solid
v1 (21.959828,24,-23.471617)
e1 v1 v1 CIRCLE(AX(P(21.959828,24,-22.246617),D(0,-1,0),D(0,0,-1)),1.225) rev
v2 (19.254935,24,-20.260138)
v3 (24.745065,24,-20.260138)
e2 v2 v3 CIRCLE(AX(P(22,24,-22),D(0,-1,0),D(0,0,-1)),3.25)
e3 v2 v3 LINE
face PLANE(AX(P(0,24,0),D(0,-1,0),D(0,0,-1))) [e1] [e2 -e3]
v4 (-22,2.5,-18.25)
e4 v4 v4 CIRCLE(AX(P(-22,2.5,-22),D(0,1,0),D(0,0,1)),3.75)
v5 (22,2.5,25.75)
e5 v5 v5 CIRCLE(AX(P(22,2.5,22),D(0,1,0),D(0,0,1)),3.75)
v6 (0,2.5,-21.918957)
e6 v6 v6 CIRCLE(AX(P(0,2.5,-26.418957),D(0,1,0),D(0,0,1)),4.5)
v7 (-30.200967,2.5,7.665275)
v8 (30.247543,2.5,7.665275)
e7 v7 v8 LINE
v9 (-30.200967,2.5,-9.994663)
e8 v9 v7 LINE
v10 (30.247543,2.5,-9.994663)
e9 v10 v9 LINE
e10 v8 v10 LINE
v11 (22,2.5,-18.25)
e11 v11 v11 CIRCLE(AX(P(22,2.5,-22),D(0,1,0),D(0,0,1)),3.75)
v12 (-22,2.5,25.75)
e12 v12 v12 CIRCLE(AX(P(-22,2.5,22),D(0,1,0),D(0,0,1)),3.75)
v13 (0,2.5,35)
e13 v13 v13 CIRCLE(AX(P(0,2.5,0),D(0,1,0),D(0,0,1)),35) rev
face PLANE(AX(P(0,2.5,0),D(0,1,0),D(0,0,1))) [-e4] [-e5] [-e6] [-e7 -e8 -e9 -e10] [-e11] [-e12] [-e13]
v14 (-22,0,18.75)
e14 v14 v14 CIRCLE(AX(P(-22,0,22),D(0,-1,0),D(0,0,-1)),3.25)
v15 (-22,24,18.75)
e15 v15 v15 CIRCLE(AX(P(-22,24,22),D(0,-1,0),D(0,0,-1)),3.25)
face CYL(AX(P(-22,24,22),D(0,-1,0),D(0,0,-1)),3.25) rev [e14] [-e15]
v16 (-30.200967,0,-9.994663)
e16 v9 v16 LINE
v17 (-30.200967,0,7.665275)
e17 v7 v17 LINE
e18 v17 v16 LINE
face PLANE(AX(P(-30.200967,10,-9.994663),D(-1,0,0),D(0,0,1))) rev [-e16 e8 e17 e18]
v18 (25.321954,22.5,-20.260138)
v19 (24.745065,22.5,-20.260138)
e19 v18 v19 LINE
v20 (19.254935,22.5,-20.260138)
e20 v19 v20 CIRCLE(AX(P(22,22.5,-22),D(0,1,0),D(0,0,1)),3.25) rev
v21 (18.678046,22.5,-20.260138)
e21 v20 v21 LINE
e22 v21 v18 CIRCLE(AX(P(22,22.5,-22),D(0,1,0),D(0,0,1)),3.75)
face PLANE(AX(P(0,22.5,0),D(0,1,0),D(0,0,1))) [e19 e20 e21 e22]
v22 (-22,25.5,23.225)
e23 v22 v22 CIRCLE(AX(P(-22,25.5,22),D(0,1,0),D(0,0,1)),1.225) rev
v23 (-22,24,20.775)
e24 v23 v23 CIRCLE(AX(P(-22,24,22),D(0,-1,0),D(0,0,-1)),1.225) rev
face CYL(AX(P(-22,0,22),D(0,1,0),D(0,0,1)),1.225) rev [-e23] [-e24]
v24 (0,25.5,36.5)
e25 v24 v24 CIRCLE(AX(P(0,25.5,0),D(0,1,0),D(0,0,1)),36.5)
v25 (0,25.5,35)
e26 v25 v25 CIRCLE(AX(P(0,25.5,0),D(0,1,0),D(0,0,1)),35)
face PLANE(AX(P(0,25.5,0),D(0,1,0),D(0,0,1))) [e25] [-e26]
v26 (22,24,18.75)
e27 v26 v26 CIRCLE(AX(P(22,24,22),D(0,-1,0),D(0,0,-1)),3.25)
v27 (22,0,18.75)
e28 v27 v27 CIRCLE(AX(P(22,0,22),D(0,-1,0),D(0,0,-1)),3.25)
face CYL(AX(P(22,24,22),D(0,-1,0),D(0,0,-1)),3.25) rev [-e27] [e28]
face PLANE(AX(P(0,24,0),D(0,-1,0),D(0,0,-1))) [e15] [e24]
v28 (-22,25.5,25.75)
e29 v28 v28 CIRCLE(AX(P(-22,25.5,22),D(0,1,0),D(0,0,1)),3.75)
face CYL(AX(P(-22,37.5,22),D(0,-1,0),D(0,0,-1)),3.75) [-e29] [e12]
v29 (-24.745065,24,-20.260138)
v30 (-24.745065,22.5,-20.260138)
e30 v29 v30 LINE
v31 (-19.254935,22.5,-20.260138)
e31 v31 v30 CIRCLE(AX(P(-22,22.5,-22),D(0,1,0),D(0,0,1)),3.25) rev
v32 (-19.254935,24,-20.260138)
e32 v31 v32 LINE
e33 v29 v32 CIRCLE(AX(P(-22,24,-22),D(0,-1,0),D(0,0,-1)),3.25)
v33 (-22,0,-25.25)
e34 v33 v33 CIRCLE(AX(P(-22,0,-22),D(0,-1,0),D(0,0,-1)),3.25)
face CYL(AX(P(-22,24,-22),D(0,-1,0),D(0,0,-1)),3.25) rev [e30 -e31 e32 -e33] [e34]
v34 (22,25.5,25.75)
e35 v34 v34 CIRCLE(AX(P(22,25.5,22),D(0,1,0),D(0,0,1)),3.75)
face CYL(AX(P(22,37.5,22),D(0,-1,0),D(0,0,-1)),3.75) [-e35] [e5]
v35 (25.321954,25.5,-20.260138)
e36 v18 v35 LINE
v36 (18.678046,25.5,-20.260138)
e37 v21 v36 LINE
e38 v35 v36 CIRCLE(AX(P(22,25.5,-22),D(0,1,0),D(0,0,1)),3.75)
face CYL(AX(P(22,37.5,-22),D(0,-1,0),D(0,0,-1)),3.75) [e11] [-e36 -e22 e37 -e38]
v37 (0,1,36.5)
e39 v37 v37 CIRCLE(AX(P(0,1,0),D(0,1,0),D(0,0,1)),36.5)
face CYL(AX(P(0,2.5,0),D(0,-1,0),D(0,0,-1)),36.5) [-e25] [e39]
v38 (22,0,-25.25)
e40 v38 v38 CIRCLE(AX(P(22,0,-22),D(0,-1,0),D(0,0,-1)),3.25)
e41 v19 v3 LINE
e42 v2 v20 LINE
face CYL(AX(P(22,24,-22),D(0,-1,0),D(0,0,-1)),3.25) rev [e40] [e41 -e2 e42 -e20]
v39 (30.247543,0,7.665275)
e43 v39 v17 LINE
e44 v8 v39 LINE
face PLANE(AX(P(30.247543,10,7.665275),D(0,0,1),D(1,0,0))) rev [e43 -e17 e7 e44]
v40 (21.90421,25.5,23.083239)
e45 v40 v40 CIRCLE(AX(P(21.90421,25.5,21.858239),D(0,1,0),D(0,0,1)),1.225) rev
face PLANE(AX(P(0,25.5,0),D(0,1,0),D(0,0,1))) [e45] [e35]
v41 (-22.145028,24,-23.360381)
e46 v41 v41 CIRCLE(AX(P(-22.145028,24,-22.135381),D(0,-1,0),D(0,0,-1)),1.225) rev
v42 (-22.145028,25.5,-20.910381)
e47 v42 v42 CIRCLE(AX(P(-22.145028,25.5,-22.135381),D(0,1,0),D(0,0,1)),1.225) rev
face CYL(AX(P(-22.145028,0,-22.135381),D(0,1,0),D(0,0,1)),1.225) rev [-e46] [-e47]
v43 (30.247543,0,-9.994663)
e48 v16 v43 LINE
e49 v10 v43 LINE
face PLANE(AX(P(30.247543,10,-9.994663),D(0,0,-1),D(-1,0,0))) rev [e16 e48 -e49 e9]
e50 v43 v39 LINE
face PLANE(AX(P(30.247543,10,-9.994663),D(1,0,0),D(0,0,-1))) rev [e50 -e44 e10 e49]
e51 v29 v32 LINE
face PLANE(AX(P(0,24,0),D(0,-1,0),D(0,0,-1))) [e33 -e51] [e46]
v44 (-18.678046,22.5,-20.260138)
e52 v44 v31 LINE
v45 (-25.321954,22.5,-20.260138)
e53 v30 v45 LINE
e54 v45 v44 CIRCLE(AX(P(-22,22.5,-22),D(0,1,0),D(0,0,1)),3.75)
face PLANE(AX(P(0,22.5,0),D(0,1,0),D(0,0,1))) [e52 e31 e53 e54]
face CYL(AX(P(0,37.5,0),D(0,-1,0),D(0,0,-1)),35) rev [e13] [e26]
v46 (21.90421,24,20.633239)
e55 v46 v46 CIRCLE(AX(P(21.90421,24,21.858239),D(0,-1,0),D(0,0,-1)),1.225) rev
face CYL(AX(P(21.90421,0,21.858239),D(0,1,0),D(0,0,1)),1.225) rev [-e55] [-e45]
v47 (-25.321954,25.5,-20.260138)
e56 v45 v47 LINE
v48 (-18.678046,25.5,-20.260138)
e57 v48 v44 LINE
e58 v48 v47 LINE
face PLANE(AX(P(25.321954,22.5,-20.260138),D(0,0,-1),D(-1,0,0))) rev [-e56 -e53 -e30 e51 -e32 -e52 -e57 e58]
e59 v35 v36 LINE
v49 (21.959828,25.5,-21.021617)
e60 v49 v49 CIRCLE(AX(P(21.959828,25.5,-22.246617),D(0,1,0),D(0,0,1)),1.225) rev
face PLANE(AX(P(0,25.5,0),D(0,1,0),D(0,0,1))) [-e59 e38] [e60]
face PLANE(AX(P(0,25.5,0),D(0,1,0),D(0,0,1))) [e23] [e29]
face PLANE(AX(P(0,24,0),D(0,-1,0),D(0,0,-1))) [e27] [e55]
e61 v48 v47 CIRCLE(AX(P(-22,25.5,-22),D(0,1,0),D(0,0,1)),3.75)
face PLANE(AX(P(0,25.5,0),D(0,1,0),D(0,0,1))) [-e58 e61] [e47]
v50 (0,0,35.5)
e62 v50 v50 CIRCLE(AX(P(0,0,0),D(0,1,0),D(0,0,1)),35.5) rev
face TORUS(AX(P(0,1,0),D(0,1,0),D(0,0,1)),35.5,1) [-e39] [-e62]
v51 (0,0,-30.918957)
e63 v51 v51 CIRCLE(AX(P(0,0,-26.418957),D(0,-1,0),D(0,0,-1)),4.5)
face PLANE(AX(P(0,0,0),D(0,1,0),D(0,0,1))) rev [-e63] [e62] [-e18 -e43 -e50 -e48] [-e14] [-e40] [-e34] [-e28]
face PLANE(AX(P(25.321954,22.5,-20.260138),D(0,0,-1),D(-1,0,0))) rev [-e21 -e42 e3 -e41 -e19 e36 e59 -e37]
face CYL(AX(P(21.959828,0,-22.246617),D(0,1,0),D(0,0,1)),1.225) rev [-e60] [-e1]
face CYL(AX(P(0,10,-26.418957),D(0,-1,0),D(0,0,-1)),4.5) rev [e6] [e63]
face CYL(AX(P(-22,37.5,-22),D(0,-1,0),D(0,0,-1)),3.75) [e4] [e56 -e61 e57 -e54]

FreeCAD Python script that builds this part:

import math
import FreeCAD as App
import Part
import Sketcher

V = App.Vector


def edges_at(feature, points):
    """Names of the edges that pass closest to the given points."""
    edges = feature.Shape.Edges
    near = lambda p: min(range(len(edges)), key=lambda i: edges[i].distToShape(Part.Vertex(*p))[0])
    return sorted({f"Edge{near(p) + 1}" for p in points})


def add_polygon(sketch, points):
    """Adds a closed chain of lines whose ends are joined by coincident constraints."""
    first, n = sketch.GeometryCount, len(points)
    for a, b in zip(points, points[1:] + points[:1]):
        sketch.addGeometry(Part.LineSegment(App.Vector(*a, 0), App.Vector(*b, 0)), False)
    for i in range(n):
        sketch.addConstraint(Sketcher.Constraint("Coincident", first + i, 2, first + (i + 1) % n, 1))

doc = App.newDocument("Part")
body = doc.addObject("PartDesign::Body", "Body")

# Sketch on XZ plane
sketch1 = body.newObject("Sketcher::SketchObject", "Sketch")
sketch1.AttachmentSupport = (doc.getObject("XZ_Plane"), [""])
sketch1.MapMode = "FlatFace"
sketch1.addGeometry(Part.Circle(V(0, 0, 0), V(0, 0, 1), 36), False)
sketch1.addConstraint(Sketcher.Constraint("Coincident", 0, 3, -1, 1))
sketch1.addConstraint(Sketcher.Constraint("Diameter", 0, 73.0))
pad1 = body.newObject("PartDesign::Pad", "Pad")
pad1.Profile = sketch1
pad1.Length = 2.5
pad1.Reversed = True

# Sketch on XZ plane
sketch2 = body.newObject("Sketcher::SketchObject", "Sketch001")
sketch2.AttachmentSupport = (doc.getObject("XZ_Plane"), [""])
sketch2.MapMode = "FlatFace"
sketch2.AttachmentOffset = App.Placement(V(0, 0, -2.5), App.Rotation())
sketch2.addGeometry(Part.Circle(V(0, 0, 0), V(0, 0, 1), 36), False)
sketch2.addGeometry(Part.Circle(V(0, 0, 0), V(0, 0, 1), 35), False)
sketch2.addConstraint(Sketcher.Constraint("Coincident", 0, 3, -1, 1))
sketch2.addConstraint(Sketcher.Constraint("Coincident", 1, 3, -1, 1))
sketch2.addConstraint(Sketcher.Constraint("Diameter", 0, 73.0))
sketch2.addConstraint(Sketcher.Constraint("Diameter", 1, 70.0))
pad2 = body.newObject("PartDesign::Pad", "Pad001")
pad2.Profile = sketch2
pad2.Length = 35
pad2.Reversed = True

# Sketch on XZ plane
sketch3 = body.newObject("Sketcher::SketchObject", "Sketch002")
sketch3.AttachmentSupport = (doc.getObject("XZ_Plane"), [""])
sketch3.MapMode = "FlatFace"
sketch3.AttachmentOffset = App.Placement(V(0, 0, -2.5), App.Rotation())
sketch3.addGeometry(Part.Circle(V(-22, -22, 0), V(0, 0, 1), 3.8), False)
sketch3.addGeometry(Part.Circle(V(22, -22, 0), V(0, 0, 1), 3.8), False)
sketch3.addGeometry(Part.Circle(V(22, 22, 0), V(0, 0, 1), 3.8), False)
sketch3.addGeometry(Part.Circle(V(-22, 22, 0), V(0, 0, 1), 3.8), False)
sketch3.addConstraint(Sketcher.Constraint("Equal", 0, 1))
sketch3.addConstraint(Sketcher.Constraint("Equal", 1, 2))
sketch3.addConstraint(Sketcher.Constraint("Equal", 2, 3))
sketch3.addConstraint(Sketcher.Constraint("Symmetric", 0, 3, 2, 3, -1, 1))
sketch3.addConstraint(Sketcher.Constraint("Symmetric", 1, 3, 3, 3, -1, 1))
sketch3.addConstraint(Sketcher.Constraint("Symmetric", 0, 3, 1, 3, -2))
sketch3.addConstraint(Sketcher.Constraint("Diameter", 0, 7.5))
sketch3.addConstraint(Sketcher.Constraint("DistanceX", 0, 3, -1, 1, 22.0))
sketch3.addConstraint(Sketcher.Constraint("DistanceY", 0, 3, -1, 1, 22.0))
pad3 = body.newObject("PartDesign::Pad", "Pad002")
pad3.Profile = sketch3
pad3.Length = 35
pad3.Reversed = True

# Sketch on XZ plane
sketch4 = body.newObject("Sketcher::SketchObject", "Sketch003")
sketch4.AttachmentSupport = (doc.getObject("XZ_Plane"), [""])
sketch4.MapMode = "FlatFace"
sketch4.AttachmentOffset = App.Placement(V(0, 0, -37.5), App.Rotation())
sketch4.addGeometry(Part.Circle(V(-22, 22, 0), V(0, 0, 1), 1.2), False)
sketch4.addGeometry(Part.Circle(V(-22.1, -22.1, 0), V(0, 0, 1), 1.2), False)
sketch4.addGeometry(Part.Circle(V(22, -22.2, 0), V(0, 0, 1), 1.2), False)
sketch4.addGeometry(Part.Circle(V(21.9, 21.9, 0), V(0, 0, 1), 1.2), False)
sketch4.addConstraint(Sketcher.Constraint("Equal", 0, 1))
sketch4.addConstraint(Sketcher.Constraint("Equal", 1, 2))
sketch4.addConstraint(Sketcher.Constraint("Equal", 2, 3))
sketch4.addConstraint(Sketcher.Constraint("Diameter", 0, 2.45))
sketch4.addConstraint(Sketcher.Constraint("DistanceX", 0, 3, -1, 1, 22.0))
sketch4.addConstraint(Sketcher.Constraint("DistanceY", -1, 1, 0, 3, 22.0))
sketch4.addConstraint(Sketcher.Constraint("DistanceX", 1, 3, -1, 1, 22.145028))
sketch4.addConstraint(Sketcher.Constraint("DistanceY", 1, 3, -1, 1, 22.135381))
sketch4.addConstraint(Sketcher.Constraint("DistanceX", -1, 1, 3, 3, 21.90421))
sketch4.addConstraint(Sketcher.Constraint("DistanceY", -1, 1, 3, 3, 21.858239))
sketch4.addConstraint(Sketcher.Constraint("DistanceX", -1, 1, 2, 3, 21.959828))
sketch4.addConstraint(Sketcher.Constraint("DistanceY", 2, 3, -1, 1, 22.246617))
pocket1 = body.newObject("PartDesign::Pocket", "Pocket")
pocket1.Profile = sketch4
pocket1.Type = "ThroughAll"
pocket1.Reversed = True

# Sketch on XZ plane
sketch5 = body.newObject("Sketcher::SketchObject", "Sketch004")
sketch5.AttachmentSupport = (doc.getObject("XZ_Plane"), [""])
sketch5.MapMode = "FlatFace"
sketch5.AttachmentOffset = App.Placement(V(0, 0, -24), App.Rotation())
sketch5.addGeometry(Part.ArcOfCircle(Part.Circle(V(22, 22, 0), V(0, 0, 1), 3.25), math.radians(0), math.radians(180)), False)
sketch5.addGeometry(Part.ArcOfCircle(Part.Circle(V(22, 22, 0), V(0, 0, 1), 3.25), math.radians(180), math.radians(270)), False)
sketch5.addGeometry(Part.ArcOfCircle(Part.Circle(V(22, 22, 0), V(0, 0, 1), 3.25), math.radians(-90), math.radians(0)), False)
sketch5.addGeometry(Part.ArcOfCircle(Part.Circle(V(21.9, 21.86, 0), V(0, 0, 1), 1.23), math.radians(-86), math.radians(0)), False)
sketch5.addGeometry(Part.ArcOfCircle(Part.Circle(V(21.9, 21.86, 0), V(0, 0, 1), 1.23), math.radians(173), math.radians(274)), False)
sketch5.addGeometry(Part.ArcOfCircle(Part.Circle(V(21.9, 21.86, 0), V(0, 0, 1), 1.23), math.radians(0), math.radians(173)), False)
sketch5.addGeometry(Part.ArcOfCircle(Part.Circle(V(22, -22, 0), V(0, 0, 1), 3.25), math.radians(0), math.radians(90)), False)
sketch5.addGeometry(Part.ArcOfCircle(Part.Circle(V(22, -22, 0), V(0, 0, 1), 3.25), math.radians(90), math.radians(180)), False)
sketch5.addGeometry(Part.ArcOfCircle(Part.Circle(V(22, -22, 0), V(0, 0, 1), 3.25), math.radians(180), math.radians(360)), False)
sketch5.addGeometry(Part.ArcOfCircle(Part.Circle(V(21.96, -22.25, 0), V(0, 0, 1), 1.23), math.radians(168), math.radians(360)), False)
sketch5.addGeometry(Part.ArcOfCircle(Part.Circle(V(21.96, -22.25, 0), V(0, 0, 1), 1.23), math.radians(88), math.radians(168)), False)
sketch5.addGeometry(Part.ArcOfCircle(Part.Circle(V(21.96, -22.25, 0), V(0, 0, 1), 1.22), math.radians(0), math.radians(88)), False)
sketch5.addGeometry(Part.ArcOfCircle(Part.Circle(V(-22, -22, 0), V(0, 0, 1), 3.25), math.radians(0), math.radians(90)), False)
sketch5.addGeometry(Part.ArcOfCircle(Part.Circle(V(-22, -22, 0), V(0, 0, 1), 3.25), math.radians(90), math.radians(360)), False)
sketch5.addGeometry(Part.ArcOfCircle(Part.Circle(V(-22.15, -22.14, 0), V(0, 0, 1), 1.22), math.radians(6), math.radians(83)), False)
sketch5.addGeometry(Part.ArcOfCircle(Part.Circle(V(-22.15, -22.14, 0), V(0, 0, 1), 1.23), math.radians(0), math.radians(6.35)), False)
sketch5.addGeometry(Part.ArcOfCircle(Part.Circle(V(-22.15, -22.14, 0), V(0, 0, 1), 1.23), math.radians(83), math.radians(360)), False)
sketch5.addGeometry(Part.ArcOfCircle(Part.Circle(V(-22, 22, 0), V(0, 0, 1), 3.25), math.radians(0), math.radians(270)), False)
sketch5.addGeometry(Part.ArcOfCircle(Part.Circle(V(-22, 22, 0), V(0, 0, 1), 3.25), math.radians(-90), math.radians(0)), False)
sketch5.addGeometry(Part.ArcOfCircle(Part.Circle(V(-22, 22, 0), V(0, 0, 1), 1.23), math.radians(0), math.radians(270)), False)
sketch5.addGeometry(Part.ArcOfCircle(Part.Circle(V(-22, 22, 0), V(0, 0, 1), 1.23), math.radians(-90), math.radians(0)), False)
sketch5.addConstraint(Sketcher.Constraint("Tangent", 0, 2, 1, 1))
sketch5.addConstraint(Sketcher.Constraint("Tangent", 1, 2, 2, 1))
sketch5.addConstraint(Sketcher.Constraint("Tangent", 2, 2, 0, 1))
sketch5.addConstraint(Sketcher.Constraint("Tangent", 3, 1, 4, 2))
sketch5.addConstraint(Sketcher.Constraint("Tangent", 4, 1, 5, 2))
sketch5.addConstraint(Sketcher.Constraint("Tangent", 5, 1, 3, 2))
sketch5.addConstraint(Sketcher.Constraint("Tangent", 6, 2, 7, 1))
sketch5.addConstraint(Sketcher.Constraint("Tangent", 7, 2, 8, 1))
sketch5.addConstraint(Sketcher.Constraint("Tangent", 8, 2, 6, 1))
sketch5.addConstraint(Sketcher.Constraint("Tangent", 9, 1, 10, 2))
sketch5.addConstraint(Sketcher.Constraint("Tangent", 10, 1, 11, 2))
sketch5.addConstraint(Sketcher.Constraint("Tangent", 11, 1, 9, 2))
sketch5.addConstraint(Sketcher.Constraint("Tangent", 12, 1, 13, 2))
sketch5.addConstraint(Sketcher.Constraint("Coincident", 13, 1, 12, 2))
sketch5.addConstraint(Sketcher.Constraint("Tangent", 14, 1, 15, 2))
sketch5.addConstraint(Sketcher.Constraint("Tangent", 15, 1, 16, 2))
sketch5.addConstraint(Sketcher.Constraint("Tangent", 16, 1, 14, 2))
sketch5.addConstraint(Sketcher.Constraint("Tangent", 17, 1, 18, 2))
sketch5.addConstraint(Sketcher.Constraint("Coincident", 18, 1, 17, 2))
sketch5.addConstraint(Sketcher.Constraint("Tangent", 19, 1, 20, 2))
sketch5.addConstraint(Sketcher.Constraint("Coincident", 20, 1, 19, 2))
sketch5.addConstraint(Sketcher.Constraint("Coincident", 19, 3, 17, 3))
sketch5.addConstraint(Sketcher.Constraint("Equal", 2, 6))
sketch5.addConstraint(Sketcher.Constraint("Equal", 5, 9))
sketch5.addConstraint(Sketcher.Constraint("Equal", 8, 12))
sketch5.addConstraint(Sketcher.Constraint("Equal", 11, 14))
sketch5.addConstraint(Sketcher.Constraint("Equal", 13, 17))
sketch5.addConstraint(Sketcher.Constraint("Equal", 16, 19))
sketch5.addConstraint(Sketcher.Constraint("Symmetric", 0, 3, 12, 3, -1, 1))
sketch5.addConstraint(Sketcher.Constraint("Symmetric", 6, 3, 17, 3, -1, 1))
sketch5.addConstraint(Sketcher.Constraint("Symmetric", 6, 3, 12, 3, -2))
sketch5.addConstraint(Sketcher.Constraint("Horizontal", 20, 3, 0, 2))
sketch5.addConstraint(Sketcher.Constraint("Horizontal", 0, 2, 2, 2))
sketch5.addConstraint(Sketcher.Constraint("Horizontal", 2, 2, 4, 1))
sketch5.addConstraint(Sketcher.Constraint("Horizontal", 4, 3, 5, 1))
sketch5.addConstraint(Sketcher.Constraint("Horizontal", 13, 3, 7, 2))
sketch5.addConstraint(Sketcher.Constraint("Horizontal", 7, 2, 8, 2))
sketch5.addConstraint(Sketcher.Constraint("Horizontal", 8, 2, 9, 1))
sketch5.addConstraint(Sketcher.Constraint("Horizontal", 10, 3, 11, 1))
sketch5.addConstraint(Sketcher.Constraint("Horizontal", 9, 1, 12, 1))
sketch5.addConstraint(Sketcher.Constraint("Horizontal", 12, 1, 14, 1))
sketch5.addConstraint(Sketcher.Constraint("Horizontal", 16, 3, 15, 1))
sketch5.addConstraint(Sketcher.Constraint("Horizontal", 4, 1, 17, 1))
sketch5.addConstraint(Sketcher.Constraint("Horizontal", 17, 1, 19, 1))
sketch5.addConstraint(Sketcher.Constraint("Vertical", 8, 3, 1, 2))
sketch5.addConstraint(Sketcher.Constraint("Vertical", 1, 2, 3, 1))
sketch5.addConstraint(Sketcher.Constraint("Vertical", 3, 1, 6, 2))
sketch5.addConstraint(Sketcher.Constraint("Vertical", 6, 2, 10, 1))
sketch5.addConstraint(Sketcher.Constraint("Vertical", 20, 3, 13, 1))
sketch5.addConstraint(Sketcher.Constraint("Vertical", 13, 1, 16, 1))
sketch5.addConstraint(Sketcher.Constraint("Vertical", 16, 1, 18, 1))
sketch5.addConstraint(Sketcher.Constraint("Vertical", 18, 1, 20, 1))
sketch5.addConstraint(Sketcher.Constraint("Radius", 0, 3.25))
sketch5.addConstraint(Sketcher.Constraint("DistanceX", -1, 1, 0, 3, 22.0))
sketch5.addConstraint(Sketcher.Constraint("DistanceY", -1, 1, 0, 3, 22.0))
sketch5.addConstraint(Sketcher.Constraint("Radius", 3, 1.225))
sketch5.addConstraint(Sketcher.Constraint("DistanceX", -1, 1, 3, 3, 21.90421))
sketch5.addConstraint(Sketcher.Constraint("DistanceY", -1, 1, 3, 3, 21.858239))
sketch5.addConstraint(Sketcher.Constraint("DistanceX", 14, 3, -1, 1, 22.145028))
sketch5.addConstraint(Sketcher.Constraint("DistanceY", 14, 3, -1, 1, 22.135381))
sketch5.addConstraint(Sketcher.Constraint("DistanceX", -1, 1, 9, 1, 20.759909))
sketch5.addConstraint(Sketcher.Constraint("DistanceX", 9, 1, 9, 3, 1.199919))
pocket2 = body.newObject("PartDesign::Pocket", "Pocket001")
pocket2.Profile = sketch5
pocket2.Length = 24
pocket2.Reversed = True
doc.recompute()

fillet = body.newObject("PartDesign::Fillet", "Fillet")
fillet.Base = (pocket2, edges_at(pocket2, [(0, 37.5, -35)]))
fillet.Radius = 0.75

# Sketch on XZ plane
sketch6 = body.newObject("Sketcher::SketchObject", "Sketch005")
sketch6.AttachmentSupport = (doc.getObject("XZ_Plane"), [""])
sketch6.MapMode = "FlatFace"
sketch6.addGeometry(Part.Circle(V(0, -26.4, 0), V(0, 0, 1), 4.5), False)
sketch6.addConstraint(Sketcher.Constraint("PointOnObject", 0, 3, -2))
sketch6.addConstraint(Sketcher.Constraint("Diameter", 0, 9.0))
sketch6.addConstraint(Sketcher.Constraint("DistanceY", 0, 3, -1, 1, 26.418957))
pocket3 = body.newObject("PartDesign::Pocket", "Pocket002")
pocket3.Profile = sketch6
pocket3.Length = 10

# Sketch on XZ plane
sketch7 = body.newObject("Sketcher::SketchObject", "Sketch006")
sketch7.AttachmentSupport = (doc.getObject("XZ_Plane"), [""])
sketch7.MapMode = "FlatFace"
add_polygon(sketch7, [(-30, 8), (-30, -10), (30, -10), (30, 8)])  # lines 0-3
sketch7.addConstraint(Sketcher.Constraint("Vertical", 0))
sketch7.addConstraint(Sketcher.Constraint("Horizontal", 1))
sketch7.addConstraint(Sketcher.Constraint("Vertical", 2))
sketch7.addConstraint(Sketcher.Constraint("Horizontal", 3))
sketch7.addConstraint(Sketcher.Constraint("DistanceX", 1, 1, 1, 2, 60.448509))
sketch7.addConstraint(Sketcher.Constraint("DistanceY", 0, 2, 0, 1, 17.659938))
sketch7.addConstraint(Sketcher.Constraint("DistanceX", 0, 2, -1, 1, 30.200967))
sketch7.addConstraint(Sketcher.Constraint("DistanceY", 0, 2, -1, 1, 9.994663))
pocket4 = body.newObject("PartDesign::Pocket", "Pocket003")
pocket4.Profile = sketch7
pocket4.Length = 10
doc.recompute()

fillet2 = body.newObject("PartDesign::Fillet", "Fillet001")
fillet2.Base = (pocket4, edges_at(pocket4, [(0, 0, -36.5)]))
fillet2.Radius = 1

# Sketch on XZ plane
sketch8 = body.newObject("Sketcher::SketchObject", "Sketch007")
sketch8.AttachmentSupport = (doc.getObject("XZ_Plane"), [""])
sketch8.MapMode = "FlatFace"
sketch8.AttachmentOffset = App.Placement(V(0, 0, -25.5), App.Rotation())
sketch8.addGeometry(Part.Circle(V(0, 0, 0), V(0, 0, 1), 36), False)
sketch8.addConstraint(Sketcher.Constraint("Coincident", 0, 3, -1, 1))
sketch8.addConstraint(Sketcher.Constraint("Diameter", 0, 73.0))
pocket5 = body.newObject("PartDesign::Pocket", "Pocket004")
pocket5.Profile = sketch8
pocket5.Length = 12

# Sketch on XZ plane
sketch9 = body.newObject("Sketcher::SketchObject", "Sketch008")
sketch9.AttachmentSupport = (doc.getObject("XZ_Plane"), [""])
sketch9.MapMode = "FlatFace"
sketch9.AttachmentOffset = App.Placement(V(0, 0, -25.5), App.Rotation())
add_polygon(sketch9, [(-25.3, -20.3), (-25.3, -17.7), (25.3, -17.7), (25.3, -20.3)])  # lines 0-3
sketch9.addConstraint(Sketcher.Constraint("Vertical", 0))
sketch9.addConstraint(Sketcher.Constraint("Horizontal", 1))
sketch9.addConstraint(Sketcher.Constraint("Vertical", 2))
sketch9.addConstraint(Sketcher.Constraint("Horizontal", 3))
sketch9.addConstraint(Sketcher.Constraint("DistanceX", 1, 1, 1, 2, 50.643909))
sketch9.addConstraint(Sketcher.Constraint("DistanceY", 0, 1, 0, 2, 2.555482))
sketch9.addConstraint(Sketcher.Constraint("DistanceY", 2, 2, -1, 1, 20.260138))
sketch9.addConstraint(Sketcher.Constraint("DistanceX", 0, 2, -1, 1, 25.321954))
pocket6 = body.newObject("PartDesign::Pocket", "Pocket005")
pocket6.Profile = sketch9
pocket6.Length = 3
pocket6.Reversed = True

doc.recompute()
